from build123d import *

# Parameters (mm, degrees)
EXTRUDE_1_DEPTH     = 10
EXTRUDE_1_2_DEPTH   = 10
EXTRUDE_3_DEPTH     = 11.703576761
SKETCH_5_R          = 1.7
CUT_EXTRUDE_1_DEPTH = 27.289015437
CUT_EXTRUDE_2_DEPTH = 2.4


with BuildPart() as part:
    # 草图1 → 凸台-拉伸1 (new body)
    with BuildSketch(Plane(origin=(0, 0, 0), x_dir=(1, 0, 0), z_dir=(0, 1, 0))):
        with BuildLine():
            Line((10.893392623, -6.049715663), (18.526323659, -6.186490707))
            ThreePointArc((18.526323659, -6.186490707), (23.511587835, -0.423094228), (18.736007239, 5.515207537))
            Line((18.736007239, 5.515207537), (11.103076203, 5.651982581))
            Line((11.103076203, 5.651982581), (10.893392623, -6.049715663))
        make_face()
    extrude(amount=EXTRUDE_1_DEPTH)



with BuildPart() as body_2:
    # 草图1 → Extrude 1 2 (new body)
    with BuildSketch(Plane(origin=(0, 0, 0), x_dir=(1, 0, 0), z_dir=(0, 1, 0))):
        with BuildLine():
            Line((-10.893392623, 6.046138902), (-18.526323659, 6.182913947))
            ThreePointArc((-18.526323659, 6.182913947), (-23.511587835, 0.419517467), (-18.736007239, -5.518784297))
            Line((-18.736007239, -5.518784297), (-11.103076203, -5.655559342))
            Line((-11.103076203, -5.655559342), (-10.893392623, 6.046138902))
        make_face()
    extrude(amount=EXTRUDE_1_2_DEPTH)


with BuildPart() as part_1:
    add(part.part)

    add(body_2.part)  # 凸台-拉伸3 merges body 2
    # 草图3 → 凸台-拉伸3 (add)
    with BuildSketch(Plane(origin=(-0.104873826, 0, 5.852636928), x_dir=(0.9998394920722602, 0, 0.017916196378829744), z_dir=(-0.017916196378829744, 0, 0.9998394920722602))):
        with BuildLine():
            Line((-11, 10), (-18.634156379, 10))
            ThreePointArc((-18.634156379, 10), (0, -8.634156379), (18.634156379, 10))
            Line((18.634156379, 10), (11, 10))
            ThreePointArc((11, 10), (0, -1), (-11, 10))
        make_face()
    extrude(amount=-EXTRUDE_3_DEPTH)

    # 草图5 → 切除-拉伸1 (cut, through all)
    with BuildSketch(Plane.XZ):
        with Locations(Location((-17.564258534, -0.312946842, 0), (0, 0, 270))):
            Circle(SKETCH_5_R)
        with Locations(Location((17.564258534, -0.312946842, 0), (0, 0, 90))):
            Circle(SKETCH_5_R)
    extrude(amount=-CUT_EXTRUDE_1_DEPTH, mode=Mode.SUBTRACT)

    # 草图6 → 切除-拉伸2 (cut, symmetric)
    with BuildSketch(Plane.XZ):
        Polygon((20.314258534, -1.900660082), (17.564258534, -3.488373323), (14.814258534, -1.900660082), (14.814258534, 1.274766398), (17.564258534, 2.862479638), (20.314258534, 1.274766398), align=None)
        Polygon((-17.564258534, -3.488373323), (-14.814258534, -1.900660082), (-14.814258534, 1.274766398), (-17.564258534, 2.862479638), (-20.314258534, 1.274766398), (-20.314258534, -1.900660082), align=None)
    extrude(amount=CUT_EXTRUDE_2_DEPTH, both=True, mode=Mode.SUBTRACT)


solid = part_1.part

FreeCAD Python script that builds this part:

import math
import FreeCAD as App
import Part
import Sketcher

V = App.Vector
Q = App.Units.Quantity

doc = App.newDocument("Part")
params = doc.addObject("Spreadsheet::Sheet", "Params")
for row, (alias, value) in enumerate([
    ("pad1_length", "10 mm"),
    ("pad2_length", "10 mm"),
    ("sketch3_radius", "11 mm"),
    ("pad3_length", "11.703577 mm"),
    ("sketch4_diameter", "3.4 mm"),
    ("pocket2_length", "4.8 mm"),
], start=1):
    params.set(f"A{row}", alias)
    params.set(f"B{row}", "=" + value)
    params.setAlias(f"B{row}", alias)

body = doc.addObject("PartDesign::Body", "Body")

# Sketch on XZ plane
sketch1 = body.newObject("Sketcher::SketchObject", "Sketch")
sketch1.AttachmentSupport = (doc.getObject("XZ_Plane"), [""])
sketch1.MapMode = "FlatFace"
sketch1.addGeometry(Part.LineSegment(V(10.893393, 6.049716, 0), V(18.526324, 6.186491, 0)), False)
sketch1.addGeometry(Part.ArcOfCircle(Part.Circle(V(17.564259, 0.316524, 0), V(0, 0, 1), 5.948284), math.radians(-78.63904), math.radians(80.692194)), False)
sketch1.addGeometry(Part.LineSegment(V(18.736007, -5.515208, 0), V(11.103076, -5.651983, 0)), False)
sketch1.addGeometry(Part.LineSegment(V(11.103076, -5.651983, 0), V(10.893393, 6.049716, 0)), False)
sketch1.addConstraint(Sketcher.Constraint("Coincident", 0, 2, 1, 2))
sketch1.addConstraint(Sketcher.Constraint("Coincident", 1, 1, 2, 1))
sketch1.addConstraint(Sketcher.Constraint("Coincident", 2, 2, 3, 1))
sketch1.addConstraint(Sketcher.Constraint("Coincident", 3, 2, 0, 1))
sketch1.addConstraint(Sketcher.Constraint("Parallel", 0, 2))
sketch1.addConstraint(Sketcher.Constraint("Perpendicular", 2, 3))
sketch1.addConstraint(Sketcher.Constraint("Equal", 0, 2))
sketch1.addConstraint(Sketcher.Constraint("Radius", 1, Q("5.948284 mm")))
sketch1.addConstraint(Sketcher.Constraint("DistanceY", 1, 1, 0, 2, Q("11.701698 mm")))
sketch1.addConstraint(Sketcher.Constraint("DistanceX", -1, 1, 1, 3, Q("17.564259 mm")))
sketch1.addConstraint(Sketcher.Constraint("DistanceY", -1, 1, 0, 2, Q("6.186491 mm")))
sketch1.addConstraint(Sketcher.Constraint("DistanceX", 1, 3, 1, 1, Q("1.171749 mm")))
sketch1.addConstraint(Sketcher.Constraint("DistanceX", 2, 2, 1, 1, Q("7.632931 mm")))
pad1 = body.newObject("PartDesign::Pad", "Pad")
pad1.Profile = sketch1
pad1.setExpression("Length", "Params.pad1_length")
pad1.Reversed = True
body2 = doc.addObject("PartDesign::Body", "Body001")

# Sketch on XZ plane
sketch2 = body2.newObject("Sketcher::SketchObject", "Sketch001")
sketch2.AttachmentSupport = (doc.getObject("XZ_Plane001"), [""])
sketch2.MapMode = "FlatFace"
sketch2.addGeometry(Part.LineSegment(V(-10.893393, -6.046139, 0), V(-18.526324, -6.182914, 0)), False)
sketch2.addGeometry(Part.ArcOfCircle(Part.Circle(V(-17.564259, -0.312947, 0), V(0, 0, 1), 5.948284), math.radians(101.36096), math.radians(260.692194)), False)
sketch2.addGeometry(Part.LineSegment(V(-18.736007, 5.518784, 0), V(-11.103076, 5.655559, 0)), False)
sketch2.addGeometry(Part.LineSegment(V(-11.103076, 5.655559, 0), V(-10.893393, -6.046139, 0)), False)
sketch2.addConstraint(Sketcher.Constraint("Coincident", 0, 2, 1, 2))
sketch2.addConstraint(Sketcher.Constraint("Coincident", 1, 1, 2, 1))
sketch2.addConstraint(Sketcher.Constraint("Coincident", 2, 2, 3, 1))
sketch2.addConstraint(Sketcher.Constraint("Coincident", 3, 2, 0, 1))
sketch2.addConstraint(Sketcher.Constraint("Parallel", 0, 2))
sketch2.addConstraint(Sketcher.Constraint("Perpendicular", 2, 3))
sketch2.addConstraint(Sketcher.Constraint("Equal", 0, 2))
sketch2.addConstraint(Sketcher.Constraint("Radius", 1, Q("5.948284 mm")))
sketch2.addConstraint(Sketcher.Constraint("DistanceY", 0, 2, 1, 1, Q("11.701698 mm")))
sketch2.addConstraint(Sketcher.Constraint("DistanceX", 1, 3, -1, 1, Q("17.564259 mm")))
sketch2.addConstraint(Sketcher.Constraint("DistanceY", -1, 1, 2, 2, Q("5.655559 mm")))
sketch2.addConstraint(Sketcher.Constraint("DistanceX", 1, 1, 1, 3, Q("1.171749 mm")))
sketch2.addConstraint(Sketcher.Constraint("DistanceX", 1, 1, 2, 2, Q("7.632931 mm")))
pad2 = body2.newObject("PartDesign::Pad", "Pad001")
pad2.Profile = sketch2
pad2.setExpression("Length", "Params.pad2_length")
pad2.Reversed = True
body.AllowCompound = True
doc.recompute()

boolean = body.newObject("PartDesign::Boolean", "Boolean")
boolean.Type = "Fuse"
boolean.addObjects([body2])

# Sketch on an angled plane
sketch3 = body.newObject("Sketcher::SketchObject", "Sketch002")
sketch3.Placement = App.Placement(V(-0.104874, 0, 5.852637), App.Rotation(V(0.999839492, 0, 0.017916196), V(0, 1, 0), V(-0.017916196, 0, 0.999839492), "ZXY"))
sketch3.addGeometry(Part.LineSegment(V(-11, 10, 0), V(-18.634156, 10, 0)), False)
sketch3.addGeometry(Part.ArcOfCircle(Part.Circle(V(0, 10, 0), V(0, 0, 1), 18.634156), math.radians(180), math.radians(360)), False)
sketch3.addGeometry(Part.LineSegment(V(18.634156, 10, 0), V(11, 10, 0)), False)
sketch3.addGeometry(Part.ArcOfCircle(Part.Circle(V(0, 10, 0), V(0, 0, 1), 11), math.radians(180), math.radians(360)), False)
sketch3.addConstraint(Sketcher.Constraint("Coincident", 0, 2, 1, 1))
sketch3.addConstraint(Sketcher.Constraint("Coincident", 1, 2, 2, 1))
sketch3.addConstraint(Sketcher.Constraint("Coincident", 2, 2, 3, 2))
sketch3.addConstraint(Sketcher.Constraint("Coincident", 3, 1, 0, 1))
sketch3.addConstraint(Sketcher.Constraint("Horizontal", 0))
sketch3.addConstraint(Sketcher.Constraint("Horizontal", 2))
sketch3.addConstraint(Sketcher.Constraint("Coincident", 3, 3, 1, 3))
sketch3.addConstraint(Sketcher.Constraint("Symmetric", 0, 2, 1, 2, -2))
sketch3.addConstraint(Sketcher.Constraint("Horizontal", 3, 3, 0, 2))
sketch3.addConstraint(Sketcher.Constraint("Radius", 3, Q("11 mm")))
sketch3.addConstraint(Sketcher.Constraint("DistanceY", -1, 1, 1, 3, Q("10 mm")))
sketch3.addConstraint(Sketcher.Constraint("Radius", 1, Q("18.634156 mm")))
sketch3.setExpression("Constraints[9]", "Params.sketch3_radius")
pad3 = body.newObject("PartDesign::Pad", "Pad002")
pad3.Profile = sketch3
pad3.setExpression("Length", "Params.pad3_length")
pad3.Reversed = True

# Sketch on XZ plane
sketch4 = body.newObject("Sketcher::SketchObject", "Sketch003")
sketch4.AttachmentSupport = (doc.getObject("XZ_Plane"), [""])
sketch4.MapMode = "FlatFace"
sketch4.addGeometry(Part.Circle(V(-17.564259, -0.312947, 0), V(0, 0, 1), 1.7), False)
sketch4.addGeometry(Part.Circle(V(17.564259, -0.312947, 0), V(0, 0, 1), 1.7), False)
sketch4.addConstraint(Sketcher.Constraint("Equal", 0, 1))
sketch4.addConstraint(Sketcher.Constraint("Symmetric", 0, 3, 1, 3, -2))
sketch4.addConstraint(Sketcher.Constraint("Diameter", 0, Q("3.4 mm")))
sketch4.addConstraint(Sketcher.Constraint("DistanceX", 0, 3, -1, 1, Q("17.564259 mm")))
sketch4.addConstraint(Sketcher.Constraint("DistanceY", 0, 3, -1, 1, Q("0.312947 mm")))
sketch4.setExpression("Constraints[2]", "Params.sketch4_diameter")
pocket1 = body.newObject("PartDesign::Pocket", "Pocket")
pocket1.Profile = sketch4
pocket1.Type = "ThroughAll"

# Sketch on XZ plane
sketch5 = body.newObject("Sketcher::SketchObject", "Sketch004")
sketch5.AttachmentSupport = (doc.getObject("XZ_Plane"), [""])
sketch5.MapMode = "FlatFace"
sketch5.addGeometry(Part.LineSegment(V(17.564259, -3.488373, 0), V(20.314259, -1.90066, 0)), False)
sketch5.addGeometry(Part.LineSegment(V(20.314259, -1.90066, 0), V(20.314259, 1.274766, 0)), False)
sketch5.addGeometry(Part.LineSegment(V(20.314259, 1.274766, 0), V(17.564259, 2.86248, 0)), False)
sketch5.addGeometry(Part.LineSegment(V(17.564259, 2.86248, 0), V(14.814259, 1.274766, 0)), False)
sketch5.addGeometry(Part.LineSegment(V(14.814259, 1.274766, 0), V(14.814259, -1.90066, 0)), False)
sketch5.addGeometry(Part.LineSegment(V(14.814259, -1.90066, 0), V(17.564259, -3.488373, 0)), False)
sketch5.addGeometry(Part.LineSegment(V(-17.564259, -3.488373, 0), V(-14.814259, -1.90066, 0)), False)
sketch5.addGeometry(Part.LineSegment(V(-14.814259, -1.90066, 0), V(-14.814259, 1.274766, 0)), False)
sketch5.addGeometry(Part.LineSegment(V(-14.814259, 1.274766, 0), V(-17.564259, 2.86248, 0)), False)
sketch5.addGeometry(Part.LineSegment(V(-17.564259, 2.86248, 0), V(-20.314259, 1.274766, 0)), False)
sketch5.addGeometry(Part.LineSegment(V(-20.314259, 1.274766, 0), V(-20.314259, -1.90066, 0)), False)
sketch5.addGeometry(Part.LineSegment(V(-20.314259, -1.90066, 0), V(-17.564259, -3.488373, 0)), False)
sketch5.addConstraint(Sketcher.Constraint("Coincident", 0, 2, 1, 1))
sketch5.addConstraint(Sketcher.Constraint("Coincident", 1, 2, 2, 1))
sketch5.addConstraint(Sketcher.Constraint("Coincident", 2, 2, 3, 1))
sketch5.addConstraint(Sketcher.Constraint("Coincident", 3, 2, 4, 1))
sketch5.addConstraint(Sketcher.Constraint("Coincident", 4, 2, 5, 1))
sketch5.addConstraint(Sketcher.Constraint("Coincident", 5, 2, 0, 1))
sketch5.addConstraint(Sketcher.Constraint("Coincident", 6, 2, 7, 1))
sketch5.addConstraint(Sketcher.Constraint("Coincident", 7, 2, 8, 1))
sketch5.addConstraint(Sketcher.Constraint("Coincident", 8, 2, 9, 1))
sketch5.addConstraint(Sketcher.Constraint("Coincident", 9, 2, 10, 1))
sketch5.addConstraint(Sketcher.Constraint("Coincident", 10, 2, 11, 1))
sketch5.addConstraint(Sketcher.Constraint("Coincident", 11, 2, 6, 1))
sketch5.addConstraint(Sketcher.Constraint("Vertical", 1))
sketch5.addConstraint(Sketcher.Constraint("Vertical", 4))
sketch5.addConstraint(Sketcher.Constraint("Vertical", 7))
sketch5.addConstraint(Sketcher.Constraint("Vertical", 10))
sketch5.addConstraint(Sketcher.Constraint("Symmetric", 4, 2, 6, 2, -2))
sketch5.addConstraint(Sketcher.Constraint("Symmetric", 2, 2, 8, 2, -2))
sketch5.addConstraint(Sketcher.Constraint("Symmetric", 1, 2, 9, 2, -2))
sketch5.addConstraint(Sketcher.Constraint("Symmetric", 5, 2, 11, 2, -2))
sketch5.addConstraint(Sketcher.Constraint("Parallel", 0, 3))
sketch5.addConstraint(Sketcher.Constraint("Parallel", 2, 5))
sketch5.addConstraint(Sketcher.Constraint("Parallel", 3, 6))
sketch5.addConstraint(Sketcher.Constraint("Parallel", 5, 8))
sketch5.addConstraint(Sketcher.Constraint("Parallel", 8, 11))
sketch5.addConstraint(Sketcher.Constraint("Horizontal", 1, 2, 3, 2))
sketch5.addConstraint(Sketcher.Constraint("Horizontal", 0, 2, 4, 2))
sketch5.addConstraint(Sketcher.Constraint("Angle", 0, Q("30 deg")))
sketch5.addConstraint(Sketcher.Constraint("DistanceX", 3, 2, 1, 2, Q("5.5 mm")))
sketch5.addConstraint(Sketcher.Constraint("DistanceY", 1, 1, 1, 2, Q("3.175426 mm")))
sketch5.addConstraint(Sketcher.Constraint("DistanceX", -1, 1, 0, 2, Q("20.314259 mm")))
sketch5.addConstraint(Sketcher.Constraint("DistanceY", 0, 2, -1, 1, Q("1.90066 mm")))
pocket2 = body.newObject("PartDesign::Pocket", "Pocket001")
pocket2.Profile = sketch5
pocket2.setExpression("Length", "Params.pocket2_length")
pocket2.Midplane = True

doc.recompute()
